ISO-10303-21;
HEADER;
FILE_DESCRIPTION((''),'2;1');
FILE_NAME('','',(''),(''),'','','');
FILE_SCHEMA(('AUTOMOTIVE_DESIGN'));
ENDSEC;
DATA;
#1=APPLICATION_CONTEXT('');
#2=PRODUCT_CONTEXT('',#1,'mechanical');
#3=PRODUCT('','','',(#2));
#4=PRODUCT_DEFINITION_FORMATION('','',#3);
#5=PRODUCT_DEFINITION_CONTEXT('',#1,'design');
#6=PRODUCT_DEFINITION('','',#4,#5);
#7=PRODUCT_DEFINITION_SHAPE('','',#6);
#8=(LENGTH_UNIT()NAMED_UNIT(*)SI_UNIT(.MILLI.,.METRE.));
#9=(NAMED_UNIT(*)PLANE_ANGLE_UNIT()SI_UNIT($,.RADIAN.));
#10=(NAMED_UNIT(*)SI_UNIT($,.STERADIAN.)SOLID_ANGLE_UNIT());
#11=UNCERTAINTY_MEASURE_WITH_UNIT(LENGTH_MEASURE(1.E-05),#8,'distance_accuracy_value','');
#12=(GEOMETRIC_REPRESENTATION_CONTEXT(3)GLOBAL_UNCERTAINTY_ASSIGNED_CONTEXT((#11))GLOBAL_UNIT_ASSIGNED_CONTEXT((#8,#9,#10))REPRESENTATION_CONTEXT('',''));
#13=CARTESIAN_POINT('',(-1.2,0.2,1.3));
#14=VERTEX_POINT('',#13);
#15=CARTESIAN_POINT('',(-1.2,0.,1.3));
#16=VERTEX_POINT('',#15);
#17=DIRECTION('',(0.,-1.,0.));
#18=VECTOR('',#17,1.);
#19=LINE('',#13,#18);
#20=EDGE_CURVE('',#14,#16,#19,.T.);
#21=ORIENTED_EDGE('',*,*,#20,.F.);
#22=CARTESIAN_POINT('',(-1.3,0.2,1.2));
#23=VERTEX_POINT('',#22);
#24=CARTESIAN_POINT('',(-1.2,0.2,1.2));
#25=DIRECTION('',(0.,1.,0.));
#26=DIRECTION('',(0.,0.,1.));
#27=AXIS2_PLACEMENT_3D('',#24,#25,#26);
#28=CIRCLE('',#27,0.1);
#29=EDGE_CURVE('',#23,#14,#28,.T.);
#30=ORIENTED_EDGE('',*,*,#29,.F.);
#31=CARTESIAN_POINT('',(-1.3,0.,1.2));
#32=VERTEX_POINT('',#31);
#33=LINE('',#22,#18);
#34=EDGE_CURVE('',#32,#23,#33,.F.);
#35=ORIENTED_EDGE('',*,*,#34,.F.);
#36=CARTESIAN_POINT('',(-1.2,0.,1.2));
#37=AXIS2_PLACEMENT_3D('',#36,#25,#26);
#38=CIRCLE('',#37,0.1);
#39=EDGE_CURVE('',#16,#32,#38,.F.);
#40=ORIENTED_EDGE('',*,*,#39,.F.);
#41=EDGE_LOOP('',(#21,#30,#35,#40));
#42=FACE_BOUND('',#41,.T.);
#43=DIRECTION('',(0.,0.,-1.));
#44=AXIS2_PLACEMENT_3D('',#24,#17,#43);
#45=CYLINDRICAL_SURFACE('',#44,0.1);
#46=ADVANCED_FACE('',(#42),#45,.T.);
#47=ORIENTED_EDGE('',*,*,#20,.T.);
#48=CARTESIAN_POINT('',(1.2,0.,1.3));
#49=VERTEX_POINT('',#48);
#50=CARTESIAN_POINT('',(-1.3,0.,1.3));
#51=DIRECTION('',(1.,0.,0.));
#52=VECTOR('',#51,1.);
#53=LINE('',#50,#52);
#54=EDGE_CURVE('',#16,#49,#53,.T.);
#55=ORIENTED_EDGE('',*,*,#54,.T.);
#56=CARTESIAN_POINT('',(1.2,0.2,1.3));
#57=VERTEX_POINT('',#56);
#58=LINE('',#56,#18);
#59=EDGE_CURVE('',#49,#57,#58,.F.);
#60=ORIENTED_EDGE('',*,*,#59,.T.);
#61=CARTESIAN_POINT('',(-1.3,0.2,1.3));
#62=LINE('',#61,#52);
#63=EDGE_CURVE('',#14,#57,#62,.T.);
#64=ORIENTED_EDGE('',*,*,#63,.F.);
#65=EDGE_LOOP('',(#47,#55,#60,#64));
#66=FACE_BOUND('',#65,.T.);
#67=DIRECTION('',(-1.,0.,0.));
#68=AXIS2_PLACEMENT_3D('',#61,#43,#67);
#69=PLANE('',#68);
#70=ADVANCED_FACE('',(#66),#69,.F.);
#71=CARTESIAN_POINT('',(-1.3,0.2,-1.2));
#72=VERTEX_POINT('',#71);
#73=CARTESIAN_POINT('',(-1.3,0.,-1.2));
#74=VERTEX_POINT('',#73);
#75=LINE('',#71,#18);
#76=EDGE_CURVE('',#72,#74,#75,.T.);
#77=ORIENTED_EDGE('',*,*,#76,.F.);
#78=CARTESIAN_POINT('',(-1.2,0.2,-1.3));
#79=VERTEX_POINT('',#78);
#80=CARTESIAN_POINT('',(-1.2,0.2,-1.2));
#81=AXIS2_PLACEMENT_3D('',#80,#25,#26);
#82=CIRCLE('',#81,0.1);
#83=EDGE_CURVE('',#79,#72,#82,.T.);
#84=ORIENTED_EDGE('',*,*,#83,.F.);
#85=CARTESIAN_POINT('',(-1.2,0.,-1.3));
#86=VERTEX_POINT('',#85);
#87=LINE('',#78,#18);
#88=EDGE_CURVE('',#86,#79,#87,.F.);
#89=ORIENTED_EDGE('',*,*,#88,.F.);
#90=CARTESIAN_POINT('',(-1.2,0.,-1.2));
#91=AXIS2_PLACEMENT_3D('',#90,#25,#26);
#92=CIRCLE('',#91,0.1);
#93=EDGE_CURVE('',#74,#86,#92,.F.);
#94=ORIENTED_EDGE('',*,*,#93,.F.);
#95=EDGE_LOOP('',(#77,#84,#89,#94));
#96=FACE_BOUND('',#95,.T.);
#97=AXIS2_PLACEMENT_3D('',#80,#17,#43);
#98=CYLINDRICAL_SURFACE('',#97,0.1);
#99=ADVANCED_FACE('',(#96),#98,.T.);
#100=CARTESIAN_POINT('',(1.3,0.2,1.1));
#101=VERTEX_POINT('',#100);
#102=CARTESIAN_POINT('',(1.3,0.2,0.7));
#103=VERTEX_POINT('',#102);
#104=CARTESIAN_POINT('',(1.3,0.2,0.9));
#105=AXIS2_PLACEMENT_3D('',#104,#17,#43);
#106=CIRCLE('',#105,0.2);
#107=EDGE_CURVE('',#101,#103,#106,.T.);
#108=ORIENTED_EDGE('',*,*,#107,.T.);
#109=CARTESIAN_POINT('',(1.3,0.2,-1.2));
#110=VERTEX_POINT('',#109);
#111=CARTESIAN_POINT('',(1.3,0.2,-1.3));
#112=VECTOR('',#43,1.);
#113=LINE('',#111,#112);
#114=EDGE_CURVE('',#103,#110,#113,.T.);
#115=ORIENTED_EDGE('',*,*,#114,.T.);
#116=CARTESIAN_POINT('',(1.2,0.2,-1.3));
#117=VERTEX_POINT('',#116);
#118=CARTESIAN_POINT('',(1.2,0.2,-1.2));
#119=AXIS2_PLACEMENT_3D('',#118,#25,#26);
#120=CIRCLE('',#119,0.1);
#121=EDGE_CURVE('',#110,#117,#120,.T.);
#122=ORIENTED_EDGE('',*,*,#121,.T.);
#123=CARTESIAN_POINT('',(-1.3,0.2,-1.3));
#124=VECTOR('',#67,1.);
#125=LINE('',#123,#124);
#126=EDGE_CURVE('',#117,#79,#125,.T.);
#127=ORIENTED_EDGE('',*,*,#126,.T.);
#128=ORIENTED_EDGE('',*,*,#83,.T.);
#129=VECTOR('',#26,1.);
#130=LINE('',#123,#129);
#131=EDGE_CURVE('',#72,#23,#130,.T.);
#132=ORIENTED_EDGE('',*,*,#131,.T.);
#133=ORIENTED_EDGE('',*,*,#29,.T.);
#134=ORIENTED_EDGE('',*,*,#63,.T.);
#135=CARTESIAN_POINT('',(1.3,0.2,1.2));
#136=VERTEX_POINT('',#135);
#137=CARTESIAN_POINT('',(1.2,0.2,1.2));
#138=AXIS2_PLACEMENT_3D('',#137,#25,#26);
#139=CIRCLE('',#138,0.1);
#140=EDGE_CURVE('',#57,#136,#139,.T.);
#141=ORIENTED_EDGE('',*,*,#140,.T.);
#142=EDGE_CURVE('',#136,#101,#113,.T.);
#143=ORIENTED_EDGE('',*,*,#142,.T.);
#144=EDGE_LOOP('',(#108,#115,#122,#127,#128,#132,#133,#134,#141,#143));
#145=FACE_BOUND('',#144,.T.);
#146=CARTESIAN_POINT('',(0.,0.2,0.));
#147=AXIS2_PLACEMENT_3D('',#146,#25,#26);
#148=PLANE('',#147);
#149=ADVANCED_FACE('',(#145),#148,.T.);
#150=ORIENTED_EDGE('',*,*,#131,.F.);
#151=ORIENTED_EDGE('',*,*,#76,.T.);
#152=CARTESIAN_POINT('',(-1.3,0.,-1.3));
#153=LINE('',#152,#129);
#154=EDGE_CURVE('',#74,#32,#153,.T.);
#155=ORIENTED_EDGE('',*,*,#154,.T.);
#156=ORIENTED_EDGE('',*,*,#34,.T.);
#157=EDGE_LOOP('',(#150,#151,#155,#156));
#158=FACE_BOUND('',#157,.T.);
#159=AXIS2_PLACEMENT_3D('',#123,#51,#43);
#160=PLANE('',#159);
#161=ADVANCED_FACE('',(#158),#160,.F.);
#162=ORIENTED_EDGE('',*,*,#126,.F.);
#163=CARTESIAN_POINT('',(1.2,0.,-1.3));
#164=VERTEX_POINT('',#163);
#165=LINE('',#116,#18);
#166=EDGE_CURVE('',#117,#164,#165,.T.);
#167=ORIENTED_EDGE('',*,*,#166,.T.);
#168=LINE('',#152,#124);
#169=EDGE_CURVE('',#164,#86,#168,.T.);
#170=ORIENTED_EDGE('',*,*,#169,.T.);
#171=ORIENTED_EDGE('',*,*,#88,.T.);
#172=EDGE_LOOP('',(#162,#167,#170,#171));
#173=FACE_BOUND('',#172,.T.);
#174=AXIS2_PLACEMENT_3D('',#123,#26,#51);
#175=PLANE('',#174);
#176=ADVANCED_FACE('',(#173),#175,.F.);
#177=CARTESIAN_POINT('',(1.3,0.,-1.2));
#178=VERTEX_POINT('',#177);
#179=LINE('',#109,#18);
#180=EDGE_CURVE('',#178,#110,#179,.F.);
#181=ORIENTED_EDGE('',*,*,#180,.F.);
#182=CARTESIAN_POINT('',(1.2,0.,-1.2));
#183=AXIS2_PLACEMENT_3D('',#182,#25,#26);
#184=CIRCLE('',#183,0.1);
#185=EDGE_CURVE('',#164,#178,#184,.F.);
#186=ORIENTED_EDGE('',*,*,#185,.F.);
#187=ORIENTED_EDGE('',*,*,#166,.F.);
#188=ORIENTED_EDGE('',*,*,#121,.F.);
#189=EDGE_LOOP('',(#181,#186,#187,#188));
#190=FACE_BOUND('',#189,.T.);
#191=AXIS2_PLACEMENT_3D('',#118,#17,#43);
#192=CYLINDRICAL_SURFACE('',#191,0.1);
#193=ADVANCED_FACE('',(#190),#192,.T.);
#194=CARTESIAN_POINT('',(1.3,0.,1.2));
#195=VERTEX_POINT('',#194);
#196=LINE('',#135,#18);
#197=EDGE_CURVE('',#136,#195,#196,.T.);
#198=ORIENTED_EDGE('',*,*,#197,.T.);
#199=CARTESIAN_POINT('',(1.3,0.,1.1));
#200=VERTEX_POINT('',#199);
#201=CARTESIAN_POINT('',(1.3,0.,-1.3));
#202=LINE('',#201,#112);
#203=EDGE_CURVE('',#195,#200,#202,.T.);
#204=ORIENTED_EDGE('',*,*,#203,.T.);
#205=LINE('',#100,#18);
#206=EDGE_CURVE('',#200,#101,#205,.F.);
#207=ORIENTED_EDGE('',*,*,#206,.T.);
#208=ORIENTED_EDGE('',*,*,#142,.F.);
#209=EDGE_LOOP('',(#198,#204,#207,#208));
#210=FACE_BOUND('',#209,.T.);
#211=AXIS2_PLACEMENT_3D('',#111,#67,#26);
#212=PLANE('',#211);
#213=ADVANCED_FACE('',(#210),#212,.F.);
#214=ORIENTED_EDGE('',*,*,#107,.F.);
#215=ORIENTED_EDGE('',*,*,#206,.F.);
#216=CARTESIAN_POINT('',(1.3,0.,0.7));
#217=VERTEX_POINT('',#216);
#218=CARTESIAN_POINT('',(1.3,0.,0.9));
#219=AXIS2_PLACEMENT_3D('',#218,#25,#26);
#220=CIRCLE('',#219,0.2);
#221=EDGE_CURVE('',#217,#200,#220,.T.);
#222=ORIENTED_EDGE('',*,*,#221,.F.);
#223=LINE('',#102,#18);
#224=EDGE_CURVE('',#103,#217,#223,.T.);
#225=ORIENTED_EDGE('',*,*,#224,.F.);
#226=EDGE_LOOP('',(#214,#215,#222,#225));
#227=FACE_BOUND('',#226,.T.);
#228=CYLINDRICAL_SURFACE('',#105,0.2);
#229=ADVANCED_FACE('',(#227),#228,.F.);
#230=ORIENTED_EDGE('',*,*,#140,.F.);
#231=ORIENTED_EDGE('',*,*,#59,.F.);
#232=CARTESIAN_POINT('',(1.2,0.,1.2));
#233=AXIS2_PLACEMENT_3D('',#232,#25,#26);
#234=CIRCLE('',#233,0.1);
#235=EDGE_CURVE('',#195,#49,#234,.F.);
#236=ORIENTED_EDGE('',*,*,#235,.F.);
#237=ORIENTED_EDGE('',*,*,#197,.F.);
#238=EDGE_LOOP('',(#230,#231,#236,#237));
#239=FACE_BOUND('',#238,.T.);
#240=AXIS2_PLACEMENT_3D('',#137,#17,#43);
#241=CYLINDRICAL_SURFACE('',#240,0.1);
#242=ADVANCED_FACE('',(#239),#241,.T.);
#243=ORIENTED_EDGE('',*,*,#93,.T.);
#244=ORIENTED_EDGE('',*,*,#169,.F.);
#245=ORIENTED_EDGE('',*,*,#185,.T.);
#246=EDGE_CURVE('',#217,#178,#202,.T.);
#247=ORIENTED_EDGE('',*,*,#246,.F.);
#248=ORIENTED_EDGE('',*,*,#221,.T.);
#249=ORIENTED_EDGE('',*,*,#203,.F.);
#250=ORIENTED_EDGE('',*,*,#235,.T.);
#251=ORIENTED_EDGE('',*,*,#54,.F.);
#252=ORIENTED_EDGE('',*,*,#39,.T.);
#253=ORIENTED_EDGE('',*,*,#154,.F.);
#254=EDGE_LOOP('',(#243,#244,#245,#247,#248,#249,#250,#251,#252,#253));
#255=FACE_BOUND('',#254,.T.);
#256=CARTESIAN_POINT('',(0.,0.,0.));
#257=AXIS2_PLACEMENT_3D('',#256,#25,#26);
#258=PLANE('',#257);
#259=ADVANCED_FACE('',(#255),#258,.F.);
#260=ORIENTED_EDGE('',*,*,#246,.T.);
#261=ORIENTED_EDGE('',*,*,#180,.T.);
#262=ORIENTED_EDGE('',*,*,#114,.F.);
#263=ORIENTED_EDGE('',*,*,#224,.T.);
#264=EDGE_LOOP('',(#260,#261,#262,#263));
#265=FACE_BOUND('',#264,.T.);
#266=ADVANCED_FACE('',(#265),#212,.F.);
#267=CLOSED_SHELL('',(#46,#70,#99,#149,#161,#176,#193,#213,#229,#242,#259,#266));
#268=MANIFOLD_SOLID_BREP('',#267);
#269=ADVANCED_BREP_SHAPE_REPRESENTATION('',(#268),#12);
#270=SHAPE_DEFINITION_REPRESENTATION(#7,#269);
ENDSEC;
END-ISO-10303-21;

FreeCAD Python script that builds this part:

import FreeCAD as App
import Part
import Sketcher

V = App.Vector


def edges_at(feature, points):
    """Names of the edges that pass closest to the given points."""
    edges = feature.Shape.Edges
    near = lambda p: min(range(len(edges)), key=lambda i: edges[i].distToShape(Part.Vertex(*p))[0])
    return sorted({f"Edge{near(p) + 1}" for p in points})

doc = App.newDocument("Part")
body = doc.addObject("PartDesign::Body", "Body")

# Sketch on XZ plane
sketch1 = body.newObject("Sketcher::SketchObject", "Sketch")
sketch1.AttachmentSupport = (doc.getObject("XZ_Plane"), [""])
sketch1.MapMode = "FlatFace"
sketch1.addGeometry(Part.LineSegment(V(-1.3, -1.3, 0), V(-1.3, 1.3, 0)), False)
sketch1.addGeometry(Part.LineSegment(V(-1.3, 1.3, 0), V(1.3, 1.3, 0)), False)
sketch1.addGeometry(Part.LineSegment(V(1.3, 1.3, 0), V(1.3, -1.3, 0)), False)
sketch1.addGeometry(Part.LineSegment(V(1.3, -1.3, 0), V(-1.3, -1.3, 0)), False)
sketch1.addConstraint(Sketcher.Constraint("Coincident", 0, 2, 1, 1))
sketch1.addConstraint(Sketcher.Constraint("Coincident", 1, 2, 2, 1))
sketch1.addConstraint(Sketcher.Constraint("Coincident", 2, 2, 3, 1))
sketch1.addConstraint(Sketcher.Constraint("Coincident", 3, 2, 0, 1))
sketch1.addConstraint(Sketcher.Constraint("Vertical", 0))
sketch1.addConstraint(Sketcher.Constraint("Horizontal", 1))
sketch1.addConstraint(Sketcher.Constraint("Vertical", 2))
sketch1.addConstraint(Sketcher.Constraint("Horizontal", 3))
sketch1.addConstraint(Sketcher.Constraint("Symmetric", 0, 2, 2, 2, -1, 1))
sketch1.addConstraint(Sketcher.Constraint("Equal", 3, 0))
sketch1.addConstraint(Sketcher.Constraint("DistanceX", 1, 1, 1, 2, 2.6))
pad1 = body.newObject("PartDesign::Pad", "Pad")
pad1.Profile = sketch1
pad1.Length = 0.2
pad1.Reversed = True
doc.recompute()

fillet = body.newObject("PartDesign::Fillet", "Fillet")
fillet.Base = (pad1, edges_at(pad1, [
    (1.3, 0.1, 1.3),
    (-1.3, 0.1, 1.3),
    (-1.3, 0.1, -1.3),
    (1.3, 0.1, -1.3),
]))
fillet.Radius = 0.1

# Sketch on XZ plane
sketch2 = body.newObject("Sketcher::SketchObject", "Sketch001")
sketch2.AttachmentSupport = (doc.getObject("XZ_Plane"), [""])
sketch2.MapMode = "FlatFace"
sketch2.addGeometry(Part.Circle(V(1.3, 0.9, 0), V(0, 0, 1), 0.2), False)
sketch2.addConstraint(Sketcher.Constraint("Diameter", 0, 0.4))
sketch2.addConstraint(Sketcher.Constraint("DistanceX", -1, 1, 0, 3, 1.3))
sketch2.addConstraint(Sketcher.Constraint("DistanceY", -1, 1, 0, 3, 0.9))
pocket1 = body.newObject("PartDesign::Pocket", "Pocket")
pocket1.Profile = sketch2
pocket1.Type = "ThroughAll"

doc.recompute()
